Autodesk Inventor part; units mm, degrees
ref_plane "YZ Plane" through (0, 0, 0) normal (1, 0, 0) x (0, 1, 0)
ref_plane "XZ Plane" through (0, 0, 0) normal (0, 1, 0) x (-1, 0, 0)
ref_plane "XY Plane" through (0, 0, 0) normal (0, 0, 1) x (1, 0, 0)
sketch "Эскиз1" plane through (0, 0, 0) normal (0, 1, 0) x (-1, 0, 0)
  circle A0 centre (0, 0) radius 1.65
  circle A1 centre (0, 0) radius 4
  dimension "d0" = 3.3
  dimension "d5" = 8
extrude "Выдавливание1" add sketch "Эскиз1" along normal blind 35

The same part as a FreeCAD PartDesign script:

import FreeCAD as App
import Part
import Sketcher

doc = App.newDocument("Part")
body = doc.addObject("PartDesign::Body", "Body")

# Sketch on XZ plane
sketch1 = body.newObject("Sketcher::SketchObject", "Sketch")
sketch1.AttachmentSupport = (doc.getObject("XZ_Plane"), [""])
sketch1.MapMode = "FlatFace"
sketch1.addGeometry([
    Part.Circle(App.Vector(0, 0, 0), App.Vector(0, 0, 1), 4),
    Part.Circle(App.Vector(0, 0, 0), App.Vector(0, 0, 1), 1.65),
], False)
sketch1.addConstraint([
    Sketcher.Constraint("Coincident", 0, 3, -1, 1),
    Sketcher.Constraint("Coincident", 1, 3, -1, 1),
    Sketcher.Constraint("Diameter", 0, 8.0),
    Sketcher.Constraint("Diameter", 1, 3.3),
])
pad1 = body.newObject("PartDesign::Pad", "Pad")
pad1.Profile = sketch1
pad1.Length = 35
pad1.Reversed = True

doc.recompute()
